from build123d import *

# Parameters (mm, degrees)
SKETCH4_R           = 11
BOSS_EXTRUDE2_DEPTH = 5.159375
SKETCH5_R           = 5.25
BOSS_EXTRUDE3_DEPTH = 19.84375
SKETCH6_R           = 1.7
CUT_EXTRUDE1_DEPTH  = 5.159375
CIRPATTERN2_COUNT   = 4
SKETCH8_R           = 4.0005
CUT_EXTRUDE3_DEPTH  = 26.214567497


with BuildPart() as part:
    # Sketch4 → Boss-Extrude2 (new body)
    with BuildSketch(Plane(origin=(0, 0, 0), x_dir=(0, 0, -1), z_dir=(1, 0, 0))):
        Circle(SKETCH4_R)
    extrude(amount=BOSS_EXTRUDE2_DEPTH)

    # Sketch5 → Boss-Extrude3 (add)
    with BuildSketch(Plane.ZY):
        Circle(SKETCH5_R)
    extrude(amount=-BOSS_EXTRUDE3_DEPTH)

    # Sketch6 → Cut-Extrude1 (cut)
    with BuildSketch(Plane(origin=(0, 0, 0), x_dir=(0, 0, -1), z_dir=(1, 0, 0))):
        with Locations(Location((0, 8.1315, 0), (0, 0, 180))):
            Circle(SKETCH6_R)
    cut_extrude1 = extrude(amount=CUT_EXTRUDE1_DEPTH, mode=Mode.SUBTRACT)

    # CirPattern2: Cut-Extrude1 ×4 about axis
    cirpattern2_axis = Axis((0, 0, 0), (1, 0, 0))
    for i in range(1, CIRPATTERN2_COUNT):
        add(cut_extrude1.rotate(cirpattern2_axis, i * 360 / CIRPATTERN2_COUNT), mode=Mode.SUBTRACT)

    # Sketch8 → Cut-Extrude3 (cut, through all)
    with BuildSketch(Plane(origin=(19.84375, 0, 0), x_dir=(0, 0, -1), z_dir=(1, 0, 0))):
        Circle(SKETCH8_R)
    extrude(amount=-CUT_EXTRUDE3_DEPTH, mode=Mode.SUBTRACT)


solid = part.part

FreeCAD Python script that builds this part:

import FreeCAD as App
import Part
import Sketcher
Q = App.Units.Quantity

doc = App.newDocument("Part")
body = doc.addObject("PartDesign::Body", "Body")

# Sketch on YZ plane
sketch1 = doc.addObject("Sketcher::SketchObject", "Sketch")
body.addObject(sketch1)
sketch1.AttachmentSupport = (doc.YZ_Plane, [""])
sketch1.MapMode = "FlatFace"
sketch1.addGeometry(Part.Circle(App.Vector(0, 0, 0), App.Vector(0, 0, 1), 11), False)
sketch1.addConstraint([
    Sketcher.Constraint("Coincident", 0, 3, -1, 1),
    Sketcher.Constraint("Diameter", 0, Q("22 mm")),
])
pad1 = doc.addObject("PartDesign::Pad", "Pad")
body.addObject(pad1)
pad1.Profile = sketch1
pad1.Length = 5.159375

# Sketch on YZ plane
sketch2 = doc.addObject("Sketcher::SketchObject", "Sketch001")
body.addObject(sketch2)
sketch2.AttachmentSupport = (doc.YZ_Plane, [""])
sketch2.MapMode = "FlatFace"
sketch2.addGeometry(Part.Circle(App.Vector(0, 0, 0), App.Vector(0, 0, 1), 5), False)
sketch2.addConstraint([
    Sketcher.Constraint("Coincident", 0, 3, -1, 1),
    Sketcher.Constraint("Diameter", 0, Q("10.5 mm")),
])
pad2 = doc.addObject("PartDesign::Pad", "Pad001")
body.addObject(pad2)
pad2.Profile = sketch2
pad2.Length = 19.84375

# Sketch on YZ plane
sketch3 = doc.addObject("Sketcher::SketchObject", "Sketch002")
body.addObject(sketch3)
sketch3.AttachmentSupport = (doc.YZ_Plane, [""])
sketch3.MapMode = "FlatFace"
sketch3.addGeometry(Part.Circle(App.Vector(8.1, 0, 0), App.Vector(0, 0, 1), 1.7), False)
sketch3.addConstraint([
    Sketcher.Constraint("PointOnObject", 0, 3, -1),
    Sketcher.Constraint("Diameter", 0, Q("3.4 mm")),
    Sketcher.Constraint("DistanceX", -1, 1, 0, 3, Q("8.1315 mm")),
])
pocket1 = doc.addObject("PartDesign::Pocket", "Pocket")
body.addObject(pocket1)
pocket1.Profile = sketch3
pocket1.Length = 5.159375
pocket1.Reversed = True
doc.recompute()

polarpattern = doc.addObject("PartDesign::PolarPattern", "PolarPattern")
body.addObject(polarpattern)
polarpattern.Originals = [pocket1]
polarpattern.Axis = (doc.X_Axis, [""])
polarpattern.Angle = 360
polarpattern.Occurrences = 4
body.Tip = polarpattern

# Sketch on YZ plane
sketch4 = doc.addObject("Sketcher::SketchObject", "Sketch003")
body.addObject(sketch4)
sketch4.AttachmentSupport = (doc.YZ_Plane, [""])
sketch4.MapMode = "FlatFace"
sketch4.AttachmentOffset = App.Placement(App.Vector(0, 0, 19.84375), App.Rotation())
sketch4.addGeometry(Part.Circle(App.Vector(0, 0, 0), App.Vector(0, 0, 1), 4), False)
sketch4.addConstraint([
    Sketcher.Constraint("Coincident", 0, 3, -1, 1),
    Sketcher.Constraint("Diameter", 0, Q("8.001 mm")),
])
pocket2 = doc.addObject("PartDesign::Pocket", "Pocket001")
body.addObject(pocket2)
pocket2.Profile = sketch4
pocket2.Type = "ThroughAll"

doc.recompute()
